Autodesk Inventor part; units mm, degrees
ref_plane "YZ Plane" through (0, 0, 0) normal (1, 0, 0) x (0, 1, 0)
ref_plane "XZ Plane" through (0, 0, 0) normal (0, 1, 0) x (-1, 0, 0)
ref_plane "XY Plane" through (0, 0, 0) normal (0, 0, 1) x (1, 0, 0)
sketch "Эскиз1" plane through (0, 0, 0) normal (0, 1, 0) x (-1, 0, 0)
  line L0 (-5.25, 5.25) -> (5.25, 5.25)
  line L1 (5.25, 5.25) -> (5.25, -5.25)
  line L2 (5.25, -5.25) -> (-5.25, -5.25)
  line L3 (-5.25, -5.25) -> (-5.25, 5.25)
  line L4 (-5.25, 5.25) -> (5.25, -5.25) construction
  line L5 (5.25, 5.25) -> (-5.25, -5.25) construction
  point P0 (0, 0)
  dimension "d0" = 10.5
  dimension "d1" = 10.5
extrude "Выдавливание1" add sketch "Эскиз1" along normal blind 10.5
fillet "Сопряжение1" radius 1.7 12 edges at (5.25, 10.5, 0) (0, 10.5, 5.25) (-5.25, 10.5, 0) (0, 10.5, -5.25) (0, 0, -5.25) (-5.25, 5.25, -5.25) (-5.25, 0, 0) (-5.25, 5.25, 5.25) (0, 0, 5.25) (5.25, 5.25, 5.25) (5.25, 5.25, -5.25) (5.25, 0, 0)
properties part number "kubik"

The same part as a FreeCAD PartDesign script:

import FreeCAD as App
import Part
import Sketcher

V = App.Vector


def add_polygon(sketch, points):
    """Adds a closed chain of lines whose ends are joined by coincident constraints."""
    first, n = sketch.GeometryCount, len(points)
    for a, b in zip(points, points[1:] + points[:1]):
        sketch.addGeometry(Part.LineSegment(App.Vector(*a, 0), App.Vector(*b, 0)), False)
    for i in range(n):
        sketch.addConstraint(Sketcher.Constraint("Coincident", first + i, 2, first + (i + 1) % n, 1))

doc = App.newDocument("Part")
body = doc.addObject("PartDesign::Body", "Body")

# Sketch on XZ plane
sketch1 = body.newObject("Sketcher::SketchObject", "Sketch")
sketch1.AttachmentSupport = (doc.getObject("XZ_Plane"), [""])
sketch1.MapMode = "FlatFace"
add_polygon(sketch1, [(-5.25, 5.25), (5.25, 5.25), (5.25, -5.25), (-5.25, -5.25)])  # lines 0-3
sketch1.addConstraint([
    Sketcher.Constraint("Horizontal", 0),
    Sketcher.Constraint("Vertical", 1),
    Sketcher.Constraint("Horizontal", 2),
    Sketcher.Constraint("Vertical", 3),
    Sketcher.Constraint("Symmetric", 0, 2, 2, 2, -1, 1),
    Sketcher.Constraint("Equal", 2, 1),
    Sketcher.Constraint("DistanceX", 0, 1, 0, 2, 10.5),
])
pad1 = body.newObject("PartDesign::Pad", "Pad")
pad1.Profile = sketch1
pad1.Length = 10.5
pad1.Reversed = True
doc.recompute()

fillet = body.newObject("PartDesign::Fillet", "Fillet")
fillet.Base = (pad1, ["Edge1"])
fillet.UseAllEdges = True
fillet.Radius = 1.7

doc.recompute()
